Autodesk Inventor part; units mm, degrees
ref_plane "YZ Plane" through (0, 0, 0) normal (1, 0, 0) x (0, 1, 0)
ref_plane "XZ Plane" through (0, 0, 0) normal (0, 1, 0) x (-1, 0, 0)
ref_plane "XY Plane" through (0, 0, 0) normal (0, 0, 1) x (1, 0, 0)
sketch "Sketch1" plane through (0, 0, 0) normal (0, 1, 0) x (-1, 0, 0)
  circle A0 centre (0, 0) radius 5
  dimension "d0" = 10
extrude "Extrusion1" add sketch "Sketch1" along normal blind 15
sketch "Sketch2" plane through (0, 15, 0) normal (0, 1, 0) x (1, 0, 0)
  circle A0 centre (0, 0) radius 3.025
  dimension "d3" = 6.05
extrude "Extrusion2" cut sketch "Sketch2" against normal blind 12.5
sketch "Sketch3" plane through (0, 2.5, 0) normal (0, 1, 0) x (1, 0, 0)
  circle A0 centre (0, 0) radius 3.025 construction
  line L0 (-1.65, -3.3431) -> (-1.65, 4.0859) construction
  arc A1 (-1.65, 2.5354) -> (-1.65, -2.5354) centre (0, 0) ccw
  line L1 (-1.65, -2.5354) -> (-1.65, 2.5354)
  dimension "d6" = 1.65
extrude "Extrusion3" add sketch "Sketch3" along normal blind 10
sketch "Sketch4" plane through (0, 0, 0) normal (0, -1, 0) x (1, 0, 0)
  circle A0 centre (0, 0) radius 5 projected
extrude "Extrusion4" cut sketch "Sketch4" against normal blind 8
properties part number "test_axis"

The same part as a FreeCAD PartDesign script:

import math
import FreeCAD as App
import Part
import Sketcher
from FreeCAD import Vector

doc = App.newDocument("Part")
body = doc.addObject("PartDesign::Body", "Body")

# Sketch on XZ plane
sketch1 = doc.addObject("Sketcher::SketchObject", "Sketch")
body.addObject(sketch1)
sketch1.AttachmentSupport = (doc.XZ_Plane, [""])
sketch1.MapMode = "FlatFace"
sketch1.addGeometry(Part.Circle(Vector(0, 0, 0), Vector(0, 0, 1), 5), False)
sketch1.addConstraint([
    Sketcher.Constraint("Coincident", 0, 3, -1, 1),
    Sketcher.Constraint("Diameter", 0, 10.0),
])
pad1 = doc.addObject("PartDesign::Pad", "Pad")
body.addObject(pad1)
pad1.Profile = sketch1
pad1.Length = 15
pad1.Reversed = True

# Sketch on XZ plane
sketch2 = doc.addObject("Sketcher::SketchObject", "Sketch001")
body.addObject(sketch2)
sketch2.AttachmentSupport = (doc.XZ_Plane, [""])
sketch2.MapMode = "FlatFace"
sketch2.AttachmentOffset = App.Placement(Vector(0, 0, -15), App.Rotation())
sketch2.addGeometry(Part.Circle(Vector(0, 0, 0), Vector(0, 0, 1), 3.025), False)
sketch2.addConstraint([
    Sketcher.Constraint("Coincident", 0, 3, -1, 1),
    Sketcher.Constraint("Diameter", 0, 6.05),
])
pocket1 = doc.addObject("PartDesign::Pocket", "Pocket")
body.addObject(pocket1)
pocket1.Profile = sketch2
pocket1.Length = 12.5
pocket1.Reversed = True

# Sketch on XZ plane
sketch3 = doc.addObject("Sketcher::SketchObject", "Sketch002")
body.addObject(sketch3)
sketch3.AttachmentSupport = (doc.XZ_Plane, [""])
sketch3.MapMode = "FlatFace"
sketch3.AttachmentOffset = App.Placement(Vector(0, 0, -2.5), App.Rotation())
sketch3.addGeometry([
    Part.LineSegment(Vector(-1.65, 2.5354, 0), Vector(-1.65, -2.5354, 0)),
    Part.ArcOfCircle(Part.Circle(Vector(0, 0, 0), Vector(0, 0, 1), 3.025021), math.radians(123.05547), math.radians(236.94453)),
], False)
sketch3.addConstraint([
    Sketcher.Constraint("Coincident", 0, 1, 1, 1),
    Sketcher.Constraint("Coincident", 1, 2, 0, 2),
    Sketcher.Constraint("Vertical", 0),
    Sketcher.Constraint("Coincident", 1, 3, -1, 1),
    Sketcher.Constraint("DistanceX", 0, 1, -1, 1, 1.65),
    Sketcher.Constraint("Radius", 1, 3.025),
])
pad2 = doc.addObject("PartDesign::Pad", "Pad001")
body.addObject(pad2)
pad2.Profile = sketch3
pad2.Length = 10
pad2.Reversed = True

# Sketch on XZ plane
sketch4 = doc.addObject("Sketcher::SketchObject", "Sketch003")
body.addObject(sketch4)
sketch4.AttachmentSupport = (doc.XZ_Plane, [""])
sketch4.MapMode = "FlatFace"
sketch4.addGeometry(Part.Circle(Vector(0, 0, 0), Vector(0, 0, 1), 5), False)
sketch4.addConstraint([
    Sketcher.Constraint("Coincident", 0, 3, -1, 1),
    Sketcher.Constraint("Diameter", 0, 10.0),
])
pocket2 = doc.addObject("PartDesign::Pocket", "Pocket001")
body.addObject(pocket2)
pocket2.Profile = sketch4
pocket2.Length = 8

doc.recompute()
